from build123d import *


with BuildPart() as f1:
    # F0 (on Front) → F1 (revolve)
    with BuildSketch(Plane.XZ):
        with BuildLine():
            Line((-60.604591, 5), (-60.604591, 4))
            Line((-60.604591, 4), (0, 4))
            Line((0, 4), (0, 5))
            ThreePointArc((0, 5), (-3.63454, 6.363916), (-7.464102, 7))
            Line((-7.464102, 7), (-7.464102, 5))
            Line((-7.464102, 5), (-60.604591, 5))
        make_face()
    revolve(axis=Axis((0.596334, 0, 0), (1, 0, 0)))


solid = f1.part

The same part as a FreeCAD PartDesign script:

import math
import FreeCAD as App
import Part
import Sketcher
Q = App.Units.Quantity

doc = App.newDocument("Part")
params = doc.addObject("Spreadsheet::Sheet", "Params")
for row, (alias, value) in enumerate([
    ("sketch1_height", "1 mm"),
    ("sketch1_height2", "2 mm"),
    ("revolution_angle", "360 deg"),
], start=1):
    params.set(f"A{row}", alias)
    params.set(f"B{row}", "=" + value)
    params.setAlias(f"B{row}", alias)

body = doc.addObject("PartDesign::Body", "Body")

# Sketch on XZ plane
sketch1 = body.newObject("Sketcher::SketchObject", "Sketch")
sketch1.AttachmentSupport = (doc.getObject("XZ_Plane"), [""])
sketch1.MapMode = "FlatFace"
sketch1.addGeometry(Part.LineSegment(App.Vector(-60.6, 5, 0), App.Vector(-60.6, 4, 0)), False)
sketch1.addGeometry(Part.LineSegment(App.Vector(-60.6, 4, 0), App.Vector(0, 4, 0)), False)
sketch1.addGeometry(Part.LineSegment(App.Vector(0, 4, 0), App.Vector(0, 5, 0)), False)
sketch1.addGeometry(Part.ArcOfCircle(Part.Circle(App.Vector(-8.8, -13, 0), App.Vector(0, 0, 1), 20), math.radians(64), math.radians(86)), False)
sketch1.addGeometry(Part.LineSegment(App.Vector(-7.5, 7, 0), App.Vector(-7.5, 5, 0)), False)
sketch1.addGeometry(Part.LineSegment(App.Vector(-7.5, 5, 0), App.Vector(-60.6, 5, 0)), False)
sketch1.addConstraint(Sketcher.Constraint("Coincident", 0, 2, 1, 1))
sketch1.addConstraint(Sketcher.Constraint("Coincident", 1, 2, 2, 1))
sketch1.addConstraint(Sketcher.Constraint("Coincident", 2, 2, 3, 1))
sketch1.addConstraint(Sketcher.Constraint("Coincident", 3, 2, 4, 1))
sketch1.addConstraint(Sketcher.Constraint("Coincident", 4, 2, 5, 1))
sketch1.addConstraint(Sketcher.Constraint("Coincident", 5, 2, 0, 1))
sketch1.addConstraint(Sketcher.Constraint("Vertical", 0))
sketch1.addConstraint(Sketcher.Constraint("Horizontal", 1))
sketch1.addConstraint(Sketcher.Constraint("Vertical", 2))
sketch1.addConstraint(Sketcher.Constraint("Vertical", 4))
sketch1.addConstraint(Sketcher.Constraint("Horizontal", 5))
sketch1.addConstraint(Sketcher.Constraint("PointOnObject", 1, 2, -2))
sketch1.addConstraint(Sketcher.Constraint("Horizontal", 2, 2, 4, 2))
sketch1.addConstraint(Sketcher.Constraint("DistanceY", 0, 2, 0, 1, Q("1 mm")))
sketch1.addConstraint(Sketcher.Constraint("DistanceY", 4, 2, 4, 1, Q("2 mm")))
sketch1.addConstraint(Sketcher.Constraint("DistanceY", -1, 1, 0, 2, Q("4 mm")))
sketch1.addConstraint(Sketcher.Constraint("Radius", 3, Q("20.000007 mm")))
sketch1.addConstraint(Sketcher.Constraint("DistanceX", 1, 1, 1, 2, Q("60.604591 mm")))
sketch1.addConstraint(Sketcher.Constraint("DistanceX", 5, 2, 5, 1, Q("53.140489 mm")))
sketch1.setExpression("Constraints[13]", "Params.sketch1_height")
sketch1.setExpression("Constraints[14]", "Params.sketch1_height2")
revolution = body.newObject("PartDesign::Revolution", "Revolution")
revolution.Profile = sketch1
revolution.ReferenceAxis = (sketch1, ["H_Axis"])
revolution.setExpression("Angle", "Params.revolution_angle")

doc.recompute()
